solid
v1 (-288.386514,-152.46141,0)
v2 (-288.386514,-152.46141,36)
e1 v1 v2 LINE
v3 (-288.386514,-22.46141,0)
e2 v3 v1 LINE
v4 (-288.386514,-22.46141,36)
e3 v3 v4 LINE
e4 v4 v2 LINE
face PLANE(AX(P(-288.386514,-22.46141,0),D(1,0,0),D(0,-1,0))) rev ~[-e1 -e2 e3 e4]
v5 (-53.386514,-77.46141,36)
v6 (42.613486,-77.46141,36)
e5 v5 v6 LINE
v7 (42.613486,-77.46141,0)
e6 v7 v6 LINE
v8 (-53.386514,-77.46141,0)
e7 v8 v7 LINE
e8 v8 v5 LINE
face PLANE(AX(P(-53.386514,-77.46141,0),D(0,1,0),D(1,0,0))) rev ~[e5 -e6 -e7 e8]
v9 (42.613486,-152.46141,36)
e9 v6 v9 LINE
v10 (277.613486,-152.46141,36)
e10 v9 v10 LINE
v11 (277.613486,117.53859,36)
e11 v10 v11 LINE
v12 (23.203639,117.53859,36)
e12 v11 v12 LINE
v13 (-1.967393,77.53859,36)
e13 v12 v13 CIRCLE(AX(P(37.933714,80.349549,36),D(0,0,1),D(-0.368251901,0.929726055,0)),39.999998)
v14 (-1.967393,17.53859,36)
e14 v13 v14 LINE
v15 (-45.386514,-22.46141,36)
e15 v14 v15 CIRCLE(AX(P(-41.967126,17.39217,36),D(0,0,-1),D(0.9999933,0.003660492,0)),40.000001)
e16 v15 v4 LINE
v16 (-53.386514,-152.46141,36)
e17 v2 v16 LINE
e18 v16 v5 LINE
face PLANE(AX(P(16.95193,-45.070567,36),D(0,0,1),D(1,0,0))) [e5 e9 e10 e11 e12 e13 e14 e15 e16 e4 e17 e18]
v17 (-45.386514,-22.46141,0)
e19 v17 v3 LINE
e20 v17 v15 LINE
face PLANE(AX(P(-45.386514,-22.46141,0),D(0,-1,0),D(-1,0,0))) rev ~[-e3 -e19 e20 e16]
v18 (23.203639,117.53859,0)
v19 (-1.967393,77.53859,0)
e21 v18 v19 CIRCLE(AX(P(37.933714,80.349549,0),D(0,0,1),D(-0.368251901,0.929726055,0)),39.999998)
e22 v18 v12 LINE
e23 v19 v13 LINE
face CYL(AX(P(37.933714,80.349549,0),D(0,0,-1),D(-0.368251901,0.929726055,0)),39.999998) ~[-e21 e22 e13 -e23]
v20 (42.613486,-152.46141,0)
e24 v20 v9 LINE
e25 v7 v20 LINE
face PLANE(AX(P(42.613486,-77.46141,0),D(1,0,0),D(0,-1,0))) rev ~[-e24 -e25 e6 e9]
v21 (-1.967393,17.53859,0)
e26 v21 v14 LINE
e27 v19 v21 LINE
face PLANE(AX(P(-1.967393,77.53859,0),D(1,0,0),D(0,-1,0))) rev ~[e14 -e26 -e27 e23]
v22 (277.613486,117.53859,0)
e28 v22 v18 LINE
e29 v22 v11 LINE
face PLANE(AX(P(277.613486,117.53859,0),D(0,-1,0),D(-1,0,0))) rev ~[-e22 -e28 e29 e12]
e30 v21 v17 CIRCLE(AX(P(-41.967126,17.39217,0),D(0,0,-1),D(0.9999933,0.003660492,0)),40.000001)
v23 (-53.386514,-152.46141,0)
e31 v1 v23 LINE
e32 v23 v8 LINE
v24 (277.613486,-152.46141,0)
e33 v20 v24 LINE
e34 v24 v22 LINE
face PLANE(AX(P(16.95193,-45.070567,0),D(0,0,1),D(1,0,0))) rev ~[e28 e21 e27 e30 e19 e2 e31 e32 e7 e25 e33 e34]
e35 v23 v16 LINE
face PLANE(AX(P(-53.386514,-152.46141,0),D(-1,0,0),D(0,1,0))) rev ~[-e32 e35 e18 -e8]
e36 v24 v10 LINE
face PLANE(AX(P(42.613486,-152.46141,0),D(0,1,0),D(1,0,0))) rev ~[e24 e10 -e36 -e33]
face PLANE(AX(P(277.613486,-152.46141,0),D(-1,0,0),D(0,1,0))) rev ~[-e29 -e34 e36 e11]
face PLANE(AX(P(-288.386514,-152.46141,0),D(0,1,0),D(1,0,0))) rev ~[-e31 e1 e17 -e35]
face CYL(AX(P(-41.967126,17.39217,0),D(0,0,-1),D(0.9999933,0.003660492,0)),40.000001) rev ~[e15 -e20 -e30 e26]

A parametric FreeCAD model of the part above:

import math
import FreeCAD as App
import Part
import Sketcher

doc = App.newDocument("Part")
body = doc.addObject("PartDesign::Body", "Body")

# Sketch on XY plane
sketch1 = body.newObject("Sketcher::SketchObject", "Sketch")
sketch1.AttachmentSupport = (doc.getObject("XY_Plane"), [""])
sketch1.MapMode = "FlatFace"
sketch1.addGeometry(Part.LineSegment(App.Vector(-288.386514, -22.46141, 0), App.Vector(-288.386514, -152.46141, 0)), False)
sketch1.addGeometry(Part.LineSegment(App.Vector(-288.386514, -152.46141, 0), App.Vector(-53.386514, -152.46141, 0)), False)
sketch1.addGeometry(Part.LineSegment(App.Vector(-53.386514, -152.46141, 0), App.Vector(-53.386514, -77.46141, 0)), False)
sketch1.addGeometry(Part.LineSegment(App.Vector(-53.386514, -77.46141, 0), App.Vector(42.613486, -77.46141, 0)), False)
sketch1.addGeometry(Part.LineSegment(App.Vector(42.613486, -77.46141, 0), App.Vector(42.613486, -152.46141, 0)), False)
sketch1.addGeometry(Part.LineSegment(App.Vector(42.613486, -152.46141, 0), App.Vector(277.613486, -152.46141, 0)), False)
sketch1.addGeometry(Part.LineSegment(App.Vector(277.613486, -152.46141, 0), App.Vector(277.613486, 117.53859, 0)), False)
sketch1.addGeometry(Part.LineSegment(App.Vector(277.613486, 117.53859, 0), App.Vector(23.203639, 117.53859, 0)), False)
sketch1.addGeometry(Part.ArcOfCircle(Part.Circle(App.Vector(37.933714, 80.349549, 0), App.Vector(0, 0, 1), 39.999998), math.radians(111.607848), math.radians(184.029724)), False)
sketch1.addGeometry(Part.LineSegment(App.Vector(-1.967393, 77.53859, 0), App.Vector(-1.967393, 17.53859, 0)), False)
sketch1.addGeometry(Part.ArcOfCircle(Part.Circle(App.Vector(-41.967126, 17.39217, 0), App.Vector(0, 0, 1), 40.000001), math.radians(-94.903897), math.radians(0.209731)), False)
sketch1.addGeometry(Part.LineSegment(App.Vector(-45.386514, -22.46141, 0), App.Vector(-288.386514, -22.46141, 0)), False)
sketch1.addConstraint(Sketcher.Constraint("Coincident", 0, 2, 1, 1))
sketch1.addConstraint(Sketcher.Constraint("Coincident", 1, 2, 2, 1))
sketch1.addConstraint(Sketcher.Constraint("Coincident", 2, 2, 3, 1))
sketch1.addConstraint(Sketcher.Constraint("Coincident", 3, 2, 4, 1))
sketch1.addConstraint(Sketcher.Constraint("Coincident", 4, 2, 5, 1))
sketch1.addConstraint(Sketcher.Constraint("Coincident", 5, 2, 6, 1))
sketch1.addConstraint(Sketcher.Constraint("Coincident", 6, 2, 7, 1))
sketch1.addConstraint(Sketcher.Constraint("Coincident", 7, 2, 8, 1))
sketch1.addConstraint(Sketcher.Constraint("Coincident", 8, 2, 9, 1))
sketch1.addConstraint(Sketcher.Constraint("Coincident", 9, 2, 10, 2))
sketch1.addConstraint(Sketcher.Constraint("Coincident", 10, 1, 11, 1))
sketch1.addConstraint(Sketcher.Constraint("Coincident", 11, 2, 0, 1))
sketch1.addConstraint(Sketcher.Constraint("Vertical", 0))
sketch1.addConstraint(Sketcher.Constraint("Horizontal", 1))
sketch1.addConstraint(Sketcher.Constraint("Vertical", 2))
sketch1.addConstraint(Sketcher.Constraint("Horizontal", 3))
sketch1.addConstraint(Sketcher.Constraint("Vertical", 4))
sketch1.addConstraint(Sketcher.Constraint("Horizontal", 5))
sketch1.addConstraint(Sketcher.Constraint("Vertical", 6))
sketch1.addConstraint(Sketcher.Constraint("Horizontal", 7))
sketch1.addConstraint(Sketcher.Constraint("Vertical", 9))
sketch1.addConstraint(Sketcher.Constraint("Horizontal", 11))
sketch1.addConstraint(Sketcher.Constraint("Horizontal", 1, 2, 4, 2))
sketch1.addConstraint(Sketcher.Constraint("Equal", 1, 5))
sketch1.addConstraint(Sketcher.Constraint("Radius", 8, 39.999998))
sketch1.addConstraint(Sketcher.Constraint("Radius", 10, 40.000001))
sketch1.addConstraint(Sketcher.Constraint("DistanceX", 1, 1, 1, 2, 235.0))
sketch1.addConstraint(Sketcher.Constraint("DistanceX", 3, 1, 3, 2, 96.0))
sketch1.addConstraint(Sketcher.Constraint("DistanceX", 11, 2, 11, 1, 243.0))
sketch1.addConstraint(Sketcher.Constraint("DistanceY", 0, 2, 0, 1, 130.0))
sketch1.addConstraint(Sketcher.Constraint("DistanceY", 2, 1, 2, 2, 75.0))
sketch1.addConstraint(Sketcher.Constraint("DistanceY", 6, 1, 6, 2, 270.0))
sketch1.addConstraint(Sketcher.Constraint("DistanceY", 9, 2, 9, 1, 60.0))
sketch1.addConstraint(Sketcher.Constraint("DistanceY", 8, 2, 7, 2, 40.0))
sketch1.addConstraint(Sketcher.Constraint("DistanceX", 7, 2, 7, 1, 254.409847))
sketch1.addConstraint(Sketcher.Constraint("DistanceY", -1, 1, 8, 3, 80.349549))
sketch1.addConstraint(Sketcher.Constraint("DistanceY", -1, 1, 10, 3, 17.39217))
sketch1.addConstraint(Sketcher.Constraint("DistanceX", -1, 1, 7, 2, 23.203639))
pad1 = body.newObject("PartDesign::Pad", "Pad")
pad1.Profile = sketch1
pad1.Length = 36

doc.recompute()
